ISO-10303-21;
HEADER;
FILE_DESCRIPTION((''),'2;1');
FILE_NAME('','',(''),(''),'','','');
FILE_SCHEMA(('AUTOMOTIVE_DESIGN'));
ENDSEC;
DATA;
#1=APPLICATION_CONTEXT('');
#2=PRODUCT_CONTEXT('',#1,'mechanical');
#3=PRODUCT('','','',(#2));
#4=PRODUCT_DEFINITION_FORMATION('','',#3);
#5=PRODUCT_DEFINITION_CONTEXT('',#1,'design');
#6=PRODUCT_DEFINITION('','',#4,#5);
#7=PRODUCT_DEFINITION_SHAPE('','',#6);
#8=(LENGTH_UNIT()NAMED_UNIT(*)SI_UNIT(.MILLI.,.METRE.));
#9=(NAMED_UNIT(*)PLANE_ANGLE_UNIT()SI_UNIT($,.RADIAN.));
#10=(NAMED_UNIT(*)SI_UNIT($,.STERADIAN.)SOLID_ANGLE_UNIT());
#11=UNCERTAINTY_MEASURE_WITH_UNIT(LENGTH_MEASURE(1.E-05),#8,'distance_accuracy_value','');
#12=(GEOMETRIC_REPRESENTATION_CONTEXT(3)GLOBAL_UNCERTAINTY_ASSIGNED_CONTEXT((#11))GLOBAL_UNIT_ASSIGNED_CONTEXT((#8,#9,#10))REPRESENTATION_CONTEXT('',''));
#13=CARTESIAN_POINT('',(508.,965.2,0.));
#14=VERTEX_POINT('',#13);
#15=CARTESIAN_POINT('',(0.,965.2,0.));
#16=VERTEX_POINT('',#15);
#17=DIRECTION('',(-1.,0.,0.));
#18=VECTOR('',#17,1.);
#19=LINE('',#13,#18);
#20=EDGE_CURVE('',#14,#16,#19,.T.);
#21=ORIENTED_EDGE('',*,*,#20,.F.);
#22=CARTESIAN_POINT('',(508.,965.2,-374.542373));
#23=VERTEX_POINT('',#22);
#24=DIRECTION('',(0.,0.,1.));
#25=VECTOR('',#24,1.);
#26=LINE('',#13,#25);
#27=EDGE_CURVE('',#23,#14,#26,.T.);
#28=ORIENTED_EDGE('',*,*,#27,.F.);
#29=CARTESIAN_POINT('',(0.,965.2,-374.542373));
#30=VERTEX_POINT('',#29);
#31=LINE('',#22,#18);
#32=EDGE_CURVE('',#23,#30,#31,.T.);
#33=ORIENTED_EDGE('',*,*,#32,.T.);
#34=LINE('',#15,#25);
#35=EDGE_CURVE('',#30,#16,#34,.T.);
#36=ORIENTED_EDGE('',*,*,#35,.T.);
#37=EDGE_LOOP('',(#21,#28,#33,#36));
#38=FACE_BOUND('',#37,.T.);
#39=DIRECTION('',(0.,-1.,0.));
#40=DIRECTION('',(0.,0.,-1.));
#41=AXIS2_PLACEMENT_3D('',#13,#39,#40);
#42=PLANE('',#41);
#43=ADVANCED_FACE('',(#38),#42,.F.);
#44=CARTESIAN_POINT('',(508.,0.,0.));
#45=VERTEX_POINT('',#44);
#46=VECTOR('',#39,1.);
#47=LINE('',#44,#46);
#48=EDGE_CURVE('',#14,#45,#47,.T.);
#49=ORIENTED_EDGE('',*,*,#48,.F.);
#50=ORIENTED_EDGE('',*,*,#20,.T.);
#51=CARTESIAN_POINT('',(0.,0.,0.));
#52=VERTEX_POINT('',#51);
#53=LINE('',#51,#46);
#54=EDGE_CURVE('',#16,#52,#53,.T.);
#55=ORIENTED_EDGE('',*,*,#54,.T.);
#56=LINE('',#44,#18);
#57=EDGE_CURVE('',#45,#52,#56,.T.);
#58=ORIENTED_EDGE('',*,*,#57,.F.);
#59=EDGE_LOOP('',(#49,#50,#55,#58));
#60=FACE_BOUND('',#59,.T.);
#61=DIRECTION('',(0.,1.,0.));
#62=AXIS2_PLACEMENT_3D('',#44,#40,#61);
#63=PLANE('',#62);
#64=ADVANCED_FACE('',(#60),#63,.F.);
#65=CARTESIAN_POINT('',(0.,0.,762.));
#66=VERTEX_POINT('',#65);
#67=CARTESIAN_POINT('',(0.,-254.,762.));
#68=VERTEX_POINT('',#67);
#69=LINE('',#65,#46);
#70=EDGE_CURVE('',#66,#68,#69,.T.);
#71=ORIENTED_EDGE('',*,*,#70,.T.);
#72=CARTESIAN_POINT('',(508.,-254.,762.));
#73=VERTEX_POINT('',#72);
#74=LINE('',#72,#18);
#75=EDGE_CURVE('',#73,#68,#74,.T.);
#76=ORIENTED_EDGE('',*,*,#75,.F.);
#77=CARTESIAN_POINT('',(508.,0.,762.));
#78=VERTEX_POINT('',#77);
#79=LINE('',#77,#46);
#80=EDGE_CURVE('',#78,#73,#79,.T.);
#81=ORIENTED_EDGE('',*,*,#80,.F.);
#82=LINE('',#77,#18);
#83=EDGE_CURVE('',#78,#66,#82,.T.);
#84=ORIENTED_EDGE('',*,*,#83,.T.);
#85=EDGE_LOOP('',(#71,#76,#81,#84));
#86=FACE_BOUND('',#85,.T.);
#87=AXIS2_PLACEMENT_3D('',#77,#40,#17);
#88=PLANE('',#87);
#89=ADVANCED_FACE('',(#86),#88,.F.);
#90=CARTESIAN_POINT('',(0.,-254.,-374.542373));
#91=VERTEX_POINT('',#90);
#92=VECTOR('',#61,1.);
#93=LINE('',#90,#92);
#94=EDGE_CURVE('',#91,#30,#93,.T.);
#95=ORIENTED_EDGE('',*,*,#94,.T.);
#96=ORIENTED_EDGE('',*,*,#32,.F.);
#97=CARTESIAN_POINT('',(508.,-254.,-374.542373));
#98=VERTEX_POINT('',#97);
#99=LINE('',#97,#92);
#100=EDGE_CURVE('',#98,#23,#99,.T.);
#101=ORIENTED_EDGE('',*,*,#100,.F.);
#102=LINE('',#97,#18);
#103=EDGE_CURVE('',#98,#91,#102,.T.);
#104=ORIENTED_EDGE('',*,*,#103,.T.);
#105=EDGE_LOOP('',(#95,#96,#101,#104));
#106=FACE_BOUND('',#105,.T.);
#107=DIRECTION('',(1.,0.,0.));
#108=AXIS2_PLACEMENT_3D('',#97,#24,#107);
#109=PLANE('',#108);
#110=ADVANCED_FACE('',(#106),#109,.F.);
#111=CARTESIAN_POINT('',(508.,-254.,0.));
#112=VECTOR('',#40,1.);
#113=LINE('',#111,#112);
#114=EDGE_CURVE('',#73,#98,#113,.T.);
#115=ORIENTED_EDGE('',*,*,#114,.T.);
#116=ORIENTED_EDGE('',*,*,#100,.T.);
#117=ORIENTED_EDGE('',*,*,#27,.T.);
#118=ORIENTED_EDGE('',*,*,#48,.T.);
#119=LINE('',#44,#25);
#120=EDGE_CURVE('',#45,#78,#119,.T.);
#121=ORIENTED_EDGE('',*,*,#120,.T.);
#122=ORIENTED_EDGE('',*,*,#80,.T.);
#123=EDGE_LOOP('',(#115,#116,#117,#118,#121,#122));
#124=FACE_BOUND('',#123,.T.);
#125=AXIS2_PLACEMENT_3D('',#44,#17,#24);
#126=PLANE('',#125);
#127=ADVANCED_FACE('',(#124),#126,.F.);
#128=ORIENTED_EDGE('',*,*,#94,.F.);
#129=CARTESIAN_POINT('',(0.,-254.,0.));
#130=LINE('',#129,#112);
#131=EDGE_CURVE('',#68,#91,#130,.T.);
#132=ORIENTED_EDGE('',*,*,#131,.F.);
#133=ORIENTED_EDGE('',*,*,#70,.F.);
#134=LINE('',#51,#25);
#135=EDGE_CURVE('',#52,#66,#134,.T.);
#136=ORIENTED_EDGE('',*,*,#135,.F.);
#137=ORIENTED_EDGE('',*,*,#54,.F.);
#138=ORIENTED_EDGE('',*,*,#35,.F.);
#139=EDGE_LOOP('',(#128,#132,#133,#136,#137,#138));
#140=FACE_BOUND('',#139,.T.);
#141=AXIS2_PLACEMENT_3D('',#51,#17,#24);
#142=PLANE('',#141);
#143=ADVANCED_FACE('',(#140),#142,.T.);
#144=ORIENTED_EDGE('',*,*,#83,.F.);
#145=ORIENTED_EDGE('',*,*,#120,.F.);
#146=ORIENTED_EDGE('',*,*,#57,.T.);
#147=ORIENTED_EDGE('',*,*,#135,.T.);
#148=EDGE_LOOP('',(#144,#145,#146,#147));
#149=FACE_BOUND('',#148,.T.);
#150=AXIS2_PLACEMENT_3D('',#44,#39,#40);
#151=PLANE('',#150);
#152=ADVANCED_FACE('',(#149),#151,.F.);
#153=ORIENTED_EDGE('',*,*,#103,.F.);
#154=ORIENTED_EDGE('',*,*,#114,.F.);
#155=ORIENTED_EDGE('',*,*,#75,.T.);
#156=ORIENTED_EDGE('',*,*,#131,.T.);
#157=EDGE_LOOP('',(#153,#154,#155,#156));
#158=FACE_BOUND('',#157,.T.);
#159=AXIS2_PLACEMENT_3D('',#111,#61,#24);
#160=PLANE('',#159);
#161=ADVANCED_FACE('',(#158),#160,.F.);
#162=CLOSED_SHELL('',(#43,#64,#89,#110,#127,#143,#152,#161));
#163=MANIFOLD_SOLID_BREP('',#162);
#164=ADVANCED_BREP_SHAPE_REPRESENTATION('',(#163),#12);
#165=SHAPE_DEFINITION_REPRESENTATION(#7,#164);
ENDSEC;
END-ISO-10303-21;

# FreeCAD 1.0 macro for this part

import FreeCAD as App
import Part
import Sketcher
Q = App.Units.Quantity

doc = App.newDocument("Part")
body = doc.addObject("PartDesign::Body", "Body")

sketch1 = body.newObject("Sketcher::SketchObject", "Sketch")
sketch1.AttachmentSupport = (doc.getObject("YZ_Plane"), [""])
sketch1.MapMode = "FlatFace"
sketch1.addGeometry([
    Part.LineSegment(App.Vector(0, 0, 0), App.Vector(0, 762, 0)),
    Part.LineSegment(App.Vector(0, 762, 0), App.Vector(-254, 762, 0)),
    Part.LineSegment(App.Vector(-254, 762, 0), App.Vector(-254, -375, 0)),
    Part.LineSegment(App.Vector(-254, -375, 0), App.Vector(965, -375, 0)),
    Part.LineSegment(App.Vector(965, -375, 0), App.Vector(965, 0, 0)),
    Part.LineSegment(App.Vector(965, 0, 0), App.Vector(0, 0, 0)),
], False)
sketch1.addConstraint([
    Sketcher.Constraint("Coincident", 0, 2, 1, 1),
    Sketcher.Constraint("Coincident", 1, 2, 2, 1),
    Sketcher.Constraint("Coincident", 2, 2, 3, 1),
    Sketcher.Constraint("Coincident", 3, 2, 4, 1),
    Sketcher.Constraint("Coincident", 4, 2, 5, 1),
    Sketcher.Constraint("Coincident", 5, 2, 0, 1),
    Sketcher.Constraint("Vertical", 0),
    Sketcher.Constraint("Horizontal", 1),
    Sketcher.Constraint("Vertical", 2),
    Sketcher.Constraint("Horizontal", 3),
    Sketcher.Constraint("Vertical", 4),
    Sketcher.Constraint("Horizontal", 5),
    Sketcher.Constraint("Coincident", 5, 2, -1, 1),
    Sketcher.Constraint("DistanceX", 1, 2, 1, 1, Q("10 in")),
    Sketcher.Constraint("DistanceX", 3, 1, 3, 2, Q("48 in")),
    Sketcher.Constraint("DistanceY", 0, 1, 0, 2, Q("30 in")),
    Sketcher.Constraint("DistanceY", 2, 2, 2, 1, Q("1136.542373 mm")),
])
pad1 = body.newObject("PartDesign::Pad", "Pad")
pad1.Profile = sketch1
pad1.Length = Q("20 in")

doc.recompute()
